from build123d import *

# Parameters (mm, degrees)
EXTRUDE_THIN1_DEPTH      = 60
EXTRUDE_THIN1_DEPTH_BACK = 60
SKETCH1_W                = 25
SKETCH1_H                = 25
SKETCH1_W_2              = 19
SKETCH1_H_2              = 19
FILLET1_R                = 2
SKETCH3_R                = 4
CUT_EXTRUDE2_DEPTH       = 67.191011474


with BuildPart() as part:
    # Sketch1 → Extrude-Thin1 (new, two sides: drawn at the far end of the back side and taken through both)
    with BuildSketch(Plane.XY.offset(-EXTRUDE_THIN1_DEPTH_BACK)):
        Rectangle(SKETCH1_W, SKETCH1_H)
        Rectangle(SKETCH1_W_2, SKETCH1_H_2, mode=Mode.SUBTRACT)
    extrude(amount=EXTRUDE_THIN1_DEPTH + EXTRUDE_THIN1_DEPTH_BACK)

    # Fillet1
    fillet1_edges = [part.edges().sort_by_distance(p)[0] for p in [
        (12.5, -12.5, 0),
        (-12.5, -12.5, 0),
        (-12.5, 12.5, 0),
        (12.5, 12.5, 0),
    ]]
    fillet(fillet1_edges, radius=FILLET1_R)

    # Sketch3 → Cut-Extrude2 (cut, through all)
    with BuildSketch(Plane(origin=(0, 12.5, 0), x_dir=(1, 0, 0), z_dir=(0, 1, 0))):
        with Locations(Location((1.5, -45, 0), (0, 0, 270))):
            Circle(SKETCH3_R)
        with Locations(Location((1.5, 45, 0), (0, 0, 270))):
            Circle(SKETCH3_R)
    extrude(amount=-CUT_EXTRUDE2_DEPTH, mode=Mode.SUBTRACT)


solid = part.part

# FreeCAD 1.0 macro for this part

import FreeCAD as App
import Part
import Sketcher
Q = App.Units.Quantity


def edges_at(feature, points):
    """Names of the edges that pass closest to the given points."""
    edges = feature.Shape.Edges
    near = lambda p: min(range(len(edges)), key=lambda i: edges[i].distToShape(Part.Vertex(*p))[0])
    return sorted({f"Edge{near(p) + 1}" for p in points})

doc = App.newDocument("Part")
params = doc.addObject("Spreadsheet::Sheet", "Params")
for row, (alias, value) in enumerate([
    ("sketch1_width", "25 mm"),
    ("sketch1_width2", "19 mm"),
    ("pad1_length", "60 mm"),
    ("pad1_length2", "60 mm"),
    ("fillet_radius", "2 mm"),
    ("sketch2_diameter", "8 mm"),
], start=1):
    params.set(f"A{row}", alias)
    params.set(f"B{row}", "=" + value)
    params.setAlias(f"B{row}", alias)

body = doc.addObject("PartDesign::Body", "Body")

sketch1 = doc.addObject("Sketcher::SketchObject", "Sketch")
body.addObject(sketch1)
sketch1.AttachmentSupport = (doc.XY_Plane, [""])
sketch1.MapMode = "FlatFace"
sketch1.addGeometry([
    Part.LineSegment(App.Vector(-12, 12, 0), App.Vector(-12, -12, 0)),
    Part.LineSegment(App.Vector(-12, -12, 0), App.Vector(12, -12, 0)),
    Part.LineSegment(App.Vector(12, -12, 0), App.Vector(12, 12, 0)),
    Part.LineSegment(App.Vector(12, 12, 0), App.Vector(-12, 12, 0)),
    Part.LineSegment(App.Vector(10, -10, 0), App.Vector(-10, -10, 0)),
    Part.LineSegment(App.Vector(-10, -10, 0), App.Vector(-10, 10, 0)),
    Part.LineSegment(App.Vector(-10, 10, 0), App.Vector(10, 10, 0)),
    Part.LineSegment(App.Vector(10, 10, 0), App.Vector(10, -10, 0)),
], False)
sketch1.addConstraint([
    Sketcher.Constraint("Coincident", 0, 2, 1, 1),
    Sketcher.Constraint("Coincident", 1, 2, 2, 1),
    Sketcher.Constraint("Coincident", 2, 2, 3, 1),
    Sketcher.Constraint("Coincident", 3, 2, 0, 1),
    Sketcher.Constraint("Coincident", 4, 2, 5, 1),
    Sketcher.Constraint("Coincident", 5, 2, 6, 1),
    Sketcher.Constraint("Coincident", 6, 2, 7, 1),
    Sketcher.Constraint("Coincident", 7, 2, 4, 1),
    Sketcher.Constraint("Vertical", 0),
    Sketcher.Constraint("Horizontal", 1),
    Sketcher.Constraint("Vertical", 2),
    Sketcher.Constraint("Horizontal", 3),
    Sketcher.Constraint("Horizontal", 4),
    Sketcher.Constraint("Vertical", 5),
    Sketcher.Constraint("Horizontal", 6),
    Sketcher.Constraint("Vertical", 7),
    Sketcher.Constraint("Symmetric", 0, 2, 2, 2, -1, 1),
    Sketcher.Constraint("Symmetric", 4, 2, 6, 2, -1, 1),
    Sketcher.Constraint("Equal", 3, 0),
    Sketcher.Constraint("Equal", 6, 5),
    Sketcher.Constraint("DistanceX", 1, 1, 1, 2, Q("25 mm")),
    Sketcher.Constraint("DistanceX", 4, 2, 4, 1, Q("19 mm")),
])
sketch1.setExpression("Constraints[20]", "Params.sketch1_width")
sketch1.setExpression("Constraints[21]", "Params.sketch1_width2")
pad1 = doc.addObject("PartDesign::Pad", "Pad")
body.addObject(pad1)
pad1.Profile = sketch1
pad1.Type = "TwoLengths"
pad1.setExpression("Length", "Params.pad1_length")
pad1.setExpression("Length2", "Params.pad1_length2")
doc.recompute()

fillet = doc.addObject("PartDesign::Fillet", "Fillet")
body.addObject(fillet)
fillet.Base = (pad1, edges_at(pad1, [
    (12.5, -12.5, 0),
    (-12.5, -12.5, 0),
    (-12.5, 12.5, 0),
    (12.5, 12.5, 0),
]))
fillet.setExpression("Radius", "Params.fillet_radius")

sketch2 = doc.addObject("Sketcher::SketchObject", "Sketch001")
body.addObject(sketch2)
sketch2.AttachmentSupport = (doc.XZ_Plane, [""])
sketch2.MapMode = "FlatFace"
sketch2.AttachmentOffset = App.Placement(App.Vector(0, 0, -12.5), App.Rotation())
sketch2.addGeometry([
    Part.Circle(App.Vector(1.5, 45, 0), App.Vector(0, 0, 1), 4),
    Part.Circle(App.Vector(1.5, -45, 0), App.Vector(0, 0, 1), 4),
], False)
sketch2.addConstraint([
    Sketcher.Constraint("Equal", 0, 1),
    Sketcher.Constraint("Symmetric", 0, 3, 1, 3, -1),
    Sketcher.Constraint("Diameter", 0, Q("8 mm")),
    Sketcher.Constraint("DistanceY", -1, 1, 0, 3, Q("45 mm")),
    Sketcher.Constraint("DistanceX", -1, 1, 0, 3, Q("1.5 mm")),
])
sketch2.setExpression("Constraints[2]", "Params.sketch2_diameter")
pocket1 = doc.addObject("PartDesign::Pocket", "Pocket")
body.addObject(pocket1)
pocket1.Profile = sketch2
pocket1.Type = "ThroughAll"
pocket1.Reversed = True

doc.recompute()
